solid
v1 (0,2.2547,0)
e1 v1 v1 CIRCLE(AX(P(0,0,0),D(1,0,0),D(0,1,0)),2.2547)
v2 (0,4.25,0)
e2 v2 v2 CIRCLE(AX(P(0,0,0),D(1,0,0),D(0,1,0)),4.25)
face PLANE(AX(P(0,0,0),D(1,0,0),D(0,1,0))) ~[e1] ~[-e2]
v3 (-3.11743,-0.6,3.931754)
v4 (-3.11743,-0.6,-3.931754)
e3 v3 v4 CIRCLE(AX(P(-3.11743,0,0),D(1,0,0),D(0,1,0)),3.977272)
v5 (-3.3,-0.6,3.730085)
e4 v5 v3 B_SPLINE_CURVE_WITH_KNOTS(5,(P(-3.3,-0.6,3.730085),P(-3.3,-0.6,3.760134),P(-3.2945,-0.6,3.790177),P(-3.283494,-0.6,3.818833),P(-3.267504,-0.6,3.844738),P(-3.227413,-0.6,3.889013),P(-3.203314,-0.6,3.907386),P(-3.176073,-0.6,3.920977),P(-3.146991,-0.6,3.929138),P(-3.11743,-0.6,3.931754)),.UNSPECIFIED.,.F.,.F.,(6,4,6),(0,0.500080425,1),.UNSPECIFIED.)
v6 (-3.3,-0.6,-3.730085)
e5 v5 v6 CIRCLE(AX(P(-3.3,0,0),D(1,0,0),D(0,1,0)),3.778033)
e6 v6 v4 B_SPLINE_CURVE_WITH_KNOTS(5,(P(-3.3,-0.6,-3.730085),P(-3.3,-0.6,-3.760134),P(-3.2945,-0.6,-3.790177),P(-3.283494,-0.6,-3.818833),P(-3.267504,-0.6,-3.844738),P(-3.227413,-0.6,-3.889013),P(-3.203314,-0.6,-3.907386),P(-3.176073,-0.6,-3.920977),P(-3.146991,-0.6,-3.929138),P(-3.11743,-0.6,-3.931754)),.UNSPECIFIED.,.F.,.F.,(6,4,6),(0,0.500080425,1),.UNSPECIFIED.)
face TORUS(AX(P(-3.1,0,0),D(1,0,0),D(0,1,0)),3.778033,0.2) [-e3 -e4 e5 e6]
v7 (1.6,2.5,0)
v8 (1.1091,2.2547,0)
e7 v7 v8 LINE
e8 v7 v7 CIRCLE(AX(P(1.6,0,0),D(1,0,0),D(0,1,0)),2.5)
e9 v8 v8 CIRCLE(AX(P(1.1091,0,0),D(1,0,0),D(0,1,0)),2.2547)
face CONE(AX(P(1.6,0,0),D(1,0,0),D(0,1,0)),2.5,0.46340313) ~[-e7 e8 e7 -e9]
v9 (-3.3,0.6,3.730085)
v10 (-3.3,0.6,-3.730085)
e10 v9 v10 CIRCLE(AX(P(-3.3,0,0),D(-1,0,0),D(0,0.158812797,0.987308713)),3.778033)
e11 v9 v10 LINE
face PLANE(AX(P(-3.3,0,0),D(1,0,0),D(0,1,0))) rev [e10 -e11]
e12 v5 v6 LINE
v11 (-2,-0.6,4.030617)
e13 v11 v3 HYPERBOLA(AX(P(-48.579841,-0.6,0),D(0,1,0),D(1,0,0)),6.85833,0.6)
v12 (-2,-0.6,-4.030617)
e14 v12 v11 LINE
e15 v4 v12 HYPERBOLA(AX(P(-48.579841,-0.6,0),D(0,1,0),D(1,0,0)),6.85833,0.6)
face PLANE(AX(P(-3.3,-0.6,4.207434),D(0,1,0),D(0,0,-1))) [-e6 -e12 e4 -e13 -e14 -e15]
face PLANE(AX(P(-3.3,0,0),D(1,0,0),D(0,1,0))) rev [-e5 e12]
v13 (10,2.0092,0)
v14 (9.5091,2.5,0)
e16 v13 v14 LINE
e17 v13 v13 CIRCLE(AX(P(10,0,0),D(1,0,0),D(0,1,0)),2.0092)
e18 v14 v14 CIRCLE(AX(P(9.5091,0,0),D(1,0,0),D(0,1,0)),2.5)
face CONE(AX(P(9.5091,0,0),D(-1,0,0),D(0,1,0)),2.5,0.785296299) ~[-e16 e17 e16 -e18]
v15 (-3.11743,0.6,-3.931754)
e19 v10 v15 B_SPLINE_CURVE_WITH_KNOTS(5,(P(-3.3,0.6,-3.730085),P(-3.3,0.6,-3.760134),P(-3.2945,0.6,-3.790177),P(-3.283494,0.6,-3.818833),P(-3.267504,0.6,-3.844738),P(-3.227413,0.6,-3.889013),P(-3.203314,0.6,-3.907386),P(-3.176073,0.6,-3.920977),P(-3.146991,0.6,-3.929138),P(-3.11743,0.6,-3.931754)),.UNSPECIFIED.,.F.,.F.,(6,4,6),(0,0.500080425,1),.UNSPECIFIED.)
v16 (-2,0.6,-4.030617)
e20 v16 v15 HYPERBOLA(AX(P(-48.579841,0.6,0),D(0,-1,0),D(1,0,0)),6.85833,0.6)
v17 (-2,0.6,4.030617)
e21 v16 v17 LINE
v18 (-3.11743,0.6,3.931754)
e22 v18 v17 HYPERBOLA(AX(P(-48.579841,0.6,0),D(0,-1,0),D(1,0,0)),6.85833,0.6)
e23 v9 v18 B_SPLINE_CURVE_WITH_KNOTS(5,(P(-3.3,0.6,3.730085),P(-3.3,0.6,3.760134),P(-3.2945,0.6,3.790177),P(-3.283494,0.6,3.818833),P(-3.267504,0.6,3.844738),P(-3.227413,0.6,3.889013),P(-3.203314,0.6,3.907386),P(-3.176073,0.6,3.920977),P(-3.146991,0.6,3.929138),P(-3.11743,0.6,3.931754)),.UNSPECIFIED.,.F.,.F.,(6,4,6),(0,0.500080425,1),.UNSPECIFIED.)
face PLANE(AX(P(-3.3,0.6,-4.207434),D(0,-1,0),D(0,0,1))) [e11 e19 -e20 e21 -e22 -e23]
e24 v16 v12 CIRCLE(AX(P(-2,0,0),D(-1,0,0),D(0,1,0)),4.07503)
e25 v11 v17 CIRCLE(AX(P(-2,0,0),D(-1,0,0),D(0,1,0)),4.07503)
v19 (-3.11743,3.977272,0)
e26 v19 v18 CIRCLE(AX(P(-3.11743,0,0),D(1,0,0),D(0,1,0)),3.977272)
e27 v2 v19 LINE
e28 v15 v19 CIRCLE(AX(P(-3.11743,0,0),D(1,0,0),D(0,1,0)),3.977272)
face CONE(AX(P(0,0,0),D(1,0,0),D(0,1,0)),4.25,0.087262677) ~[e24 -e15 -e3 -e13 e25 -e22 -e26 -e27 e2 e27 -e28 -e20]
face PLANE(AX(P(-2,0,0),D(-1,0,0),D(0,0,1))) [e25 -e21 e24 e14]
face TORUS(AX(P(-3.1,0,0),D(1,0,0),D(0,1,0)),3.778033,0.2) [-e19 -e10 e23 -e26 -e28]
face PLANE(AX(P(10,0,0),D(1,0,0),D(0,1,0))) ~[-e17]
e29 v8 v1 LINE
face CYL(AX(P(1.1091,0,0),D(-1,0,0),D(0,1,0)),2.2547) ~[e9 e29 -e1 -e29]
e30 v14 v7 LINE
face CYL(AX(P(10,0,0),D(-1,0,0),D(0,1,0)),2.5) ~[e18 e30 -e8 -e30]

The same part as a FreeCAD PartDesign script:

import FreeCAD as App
import Part
import Sketcher

V = App.Vector
Q = App.Units.Quantity


def edges_at(feature, points):
    """Names of the edges that pass closest to the given points."""
    edges = feature.Shape.Edges
    near = lambda p: min(range(len(edges)), key=lambda i: edges[i].distToShape(Part.Vertex(*p))[0])
    return sorted({f"Edge{near(p) + 1}" for p in points})


def add_polygon(sketch, points):
    """Adds a closed chain of lines whose ends are joined by coincident constraints."""
    first, n = sketch.GeometryCount, len(points)
    for a, b in zip(points, points[1:] + points[:1]):
        sketch.addGeometry(Part.LineSegment(App.Vector(*a, 0), App.Vector(*b, 0)), False)
    for i in range(n):
        sketch.addConstraint(Sketcher.Constraint("Coincident", first + i, 2, first + (i + 1) % n, 1))

doc = App.newDocument("Part")
params = doc.addObject("Spreadsheet::Sheet", "Params")
for row, (alias, value) in enumerate([
    ("sketch1_width", "8.4 mm"),
    ("sketch1_height", "2.5 mm"),
    ("revolution_angle", "360 deg"),
    ("fillet_radius", "0.2 mm"),
    ("sketch2_width", "1.2 mm"),
    ("sketch2_height", "8.5 mm"),
    ("pocket1_length", "1.3 mm"),
    ("chamfer_size", "0.4908 mm"),
    ("chamfer_size2", "0.4909 mm"),
], start=1):
    params.set(f"A{row}", alias)
    params.set(f"B{row}", "=" + value)
    params.setAlias(f"B{row}", alias)

body = doc.addObject("PartDesign::Body", "Body")

sketch1 = doc.addObject("Sketcher::SketchObject", "Sketch")
body.addObject(sketch1)
sketch1.AttachmentSupport = (doc.XY_Plane, [""])
sketch1.MapMode = "FlatFace"
add_polygon(sketch1, [(-3.3, 4), (-3.3, 0), (10, 0), (10, 2.5), (1.6, 2.5), (1.1, 2.3), (0, 2.3), (0, 4.2)])
sketch1.addConstraint([
    Sketcher.Constraint("Vertical", 0),
    Sketcher.Constraint("Horizontal", 1),
    Sketcher.Constraint("Vertical", 2),
    Sketcher.Constraint("Horizontal", 3),
    Sketcher.Constraint("Horizontal", 5),
    Sketcher.Constraint("Vertical", 6),
    Sketcher.Constraint("PointOnObject", 0, 2, -1),
    Sketcher.Constraint("PointOnObject", 5, 2, -2),
    Sketcher.Constraint("DistanceX", 3, 2, 3, 1, 8.4),
    Sketcher.Constraint("DistanceX", -1, 1, 1, 2, 10.0),
    Sketcher.Constraint("DistanceX", 0, 2, -1, 1, 3.3),
    Sketcher.Constraint("Angle", 7, Q("-175.0002 deg")),
    Sketcher.Constraint("DistanceY", 2, 1, 2, 2, 2.5),
    Sketcher.Constraint("DistanceX", 4, 2, 3, 2, 0.491),
    Sketcher.Constraint("Angle", 4, Q("-153.449 deg")),
    Sketcher.Constraint("DistanceY", -1, 1, 6, 2, 4.25),
])
sketch1.setExpression("Constraints[16]", "Params.sketch1_width")
sketch1.setExpression("Constraints[20]", "Params.sketch1_height")
revolution = doc.addObject("PartDesign::Revolution", "Revolution")
body.addObject(revolution)
revolution.Profile = sketch1
revolution.ReferenceAxis = (sketch1, ["H_Axis"])
revolution.setExpression("Angle", "Params.revolution_angle")
doc.recompute()

fillet = doc.addObject("PartDesign::Fillet", "Fillet")
body.addObject(fillet)
fillet.Base = (revolution, edges_at(revolution, [(-3.3, -3.961, 0)]))
fillet.setExpression("Radius", "Params.fillet_radius")

sketch2 = doc.addObject("Sketcher::SketchObject", "Sketch001")
body.addObject(sketch2)
sketch2.AttachmentSupport = (doc.YZ_Plane, [""])
sketch2.MapMode = "FlatFace"
sketch2.AttachmentOffset = App.Placement(V(0, 0, -3.3), App.Rotation())
add_polygon(sketch2, [(-0.6, 4.2), (0.6, 4.2), (0.6, -4.2), (-0.6, -4.2)])
sketch2.addConstraint([
    Sketcher.Constraint("Horizontal", 0),
    Sketcher.Constraint("Vertical", 1),
    Sketcher.Constraint("Horizontal", 2),
    Sketcher.Constraint("Vertical", 3),
    Sketcher.Constraint("Symmetric", 0, 2, 2, 2, -1, 1),
    Sketcher.Constraint("DistanceX", 0, 1, 0, 2, 1.2),
    Sketcher.Constraint("DistanceY", 1, 2, 1, 1, 8.5),
])
sketch2.setExpression("Constraints[9]", "Params.sketch2_width")
sketch2.setExpression("Constraints[10]", "Params.sketch2_height")
pocket1 = doc.addObject("PartDesign::Pocket", "Pocket")
body.addObject(pocket1)
pocket1.Profile = sketch2
pocket1.setExpression("Length", "Params.pocket1_length")
pocket1.Reversed = True
doc.recompute()

chamfer = doc.addObject("PartDesign::Chamfer", "Chamfer")
body.addObject(chamfer)
chamfer.Base = (pocket1, edges_at(pocket1, [(10, -2.5, 0)]))
chamfer.ChamferType = "Two distances"
chamfer.setExpression("Size", "Params.chamfer_size")
chamfer.setExpression("Size2", "Params.chamfer_size2")

doc.recompute()
